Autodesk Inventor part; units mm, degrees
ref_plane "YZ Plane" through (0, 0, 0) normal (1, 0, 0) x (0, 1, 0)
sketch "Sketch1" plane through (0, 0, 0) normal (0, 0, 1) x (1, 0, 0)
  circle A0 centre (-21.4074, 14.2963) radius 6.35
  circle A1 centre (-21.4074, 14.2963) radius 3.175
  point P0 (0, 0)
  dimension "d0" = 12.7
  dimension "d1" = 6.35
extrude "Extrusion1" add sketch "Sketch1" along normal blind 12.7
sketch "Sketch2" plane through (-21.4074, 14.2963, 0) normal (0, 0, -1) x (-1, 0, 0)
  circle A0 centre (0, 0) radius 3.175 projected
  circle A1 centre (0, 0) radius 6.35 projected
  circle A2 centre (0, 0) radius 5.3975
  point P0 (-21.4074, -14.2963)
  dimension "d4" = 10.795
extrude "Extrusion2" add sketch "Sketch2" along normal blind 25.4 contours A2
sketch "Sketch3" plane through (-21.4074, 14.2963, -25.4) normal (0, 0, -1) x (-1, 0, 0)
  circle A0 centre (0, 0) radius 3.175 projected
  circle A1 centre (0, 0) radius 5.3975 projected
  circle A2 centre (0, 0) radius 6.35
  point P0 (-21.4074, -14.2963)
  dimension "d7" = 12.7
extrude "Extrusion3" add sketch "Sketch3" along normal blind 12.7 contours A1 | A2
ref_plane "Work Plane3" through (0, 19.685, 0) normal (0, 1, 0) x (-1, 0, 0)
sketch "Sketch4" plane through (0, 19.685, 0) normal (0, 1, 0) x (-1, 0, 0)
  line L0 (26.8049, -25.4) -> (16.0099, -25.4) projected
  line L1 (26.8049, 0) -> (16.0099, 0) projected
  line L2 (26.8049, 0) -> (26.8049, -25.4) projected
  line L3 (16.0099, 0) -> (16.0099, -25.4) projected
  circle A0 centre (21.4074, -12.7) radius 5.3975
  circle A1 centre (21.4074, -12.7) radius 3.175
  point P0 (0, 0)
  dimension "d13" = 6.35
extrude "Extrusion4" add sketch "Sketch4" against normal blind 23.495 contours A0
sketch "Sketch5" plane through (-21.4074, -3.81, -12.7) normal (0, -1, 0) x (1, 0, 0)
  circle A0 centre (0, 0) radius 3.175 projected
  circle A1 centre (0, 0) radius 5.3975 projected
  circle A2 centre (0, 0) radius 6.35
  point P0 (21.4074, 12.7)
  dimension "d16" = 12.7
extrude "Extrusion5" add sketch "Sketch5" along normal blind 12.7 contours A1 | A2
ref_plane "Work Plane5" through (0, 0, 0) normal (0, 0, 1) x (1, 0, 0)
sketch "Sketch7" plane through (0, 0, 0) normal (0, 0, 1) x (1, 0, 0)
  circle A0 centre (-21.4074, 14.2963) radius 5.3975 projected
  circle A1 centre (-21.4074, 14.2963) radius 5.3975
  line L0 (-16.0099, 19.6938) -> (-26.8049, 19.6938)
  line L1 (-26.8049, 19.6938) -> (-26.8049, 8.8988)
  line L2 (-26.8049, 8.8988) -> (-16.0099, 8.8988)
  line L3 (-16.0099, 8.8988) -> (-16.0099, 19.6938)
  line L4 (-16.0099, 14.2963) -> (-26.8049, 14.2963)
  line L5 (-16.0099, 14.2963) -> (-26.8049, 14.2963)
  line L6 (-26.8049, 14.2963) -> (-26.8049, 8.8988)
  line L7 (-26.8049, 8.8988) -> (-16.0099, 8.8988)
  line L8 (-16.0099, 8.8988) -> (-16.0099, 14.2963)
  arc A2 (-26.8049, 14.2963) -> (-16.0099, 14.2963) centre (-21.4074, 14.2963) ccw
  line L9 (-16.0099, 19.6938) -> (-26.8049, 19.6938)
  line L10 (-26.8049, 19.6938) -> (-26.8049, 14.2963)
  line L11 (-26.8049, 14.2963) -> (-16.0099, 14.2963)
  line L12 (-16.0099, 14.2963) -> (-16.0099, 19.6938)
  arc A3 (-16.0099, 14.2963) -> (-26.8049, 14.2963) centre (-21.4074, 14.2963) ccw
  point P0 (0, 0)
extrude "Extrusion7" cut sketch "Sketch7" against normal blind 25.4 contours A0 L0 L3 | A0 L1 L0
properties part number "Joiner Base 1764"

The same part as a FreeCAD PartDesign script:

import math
import FreeCAD as App
import Part
import Sketcher

V = App.Vector
Q = App.Units.Quantity

doc = App.newDocument("Part")
body = doc.addObject("PartDesign::Body", "Body")

sketch1 = body.newObject("Sketcher::SketchObject", "Sketch")
sketch1.AttachmentSupport = (doc.getObject("XY_Plane"), [""])
sketch1.MapMode = "FlatFace"
sketch1.addGeometry([
    Part.Circle(V(-21.4074, 14.2963, 0), V(0, 0, 1), 6.35),
    Part.Circle(V(-21.4074, 14.2963, 0), V(0, 0, 1), 3.175),
], False)
sketch1.addConstraint([
    Sketcher.Constraint("Coincident", 1, 3, 0, 3),
    Sketcher.Constraint("Diameter", 0, Q("0.5 in")),
    Sketcher.Constraint("Diameter", 1, Q("0.25 in")),
    Sketcher.Constraint("DistanceX", 0, 3, -1, 1, Q("0.8428 in")),
    Sketcher.Constraint("DistanceY", -1, 1, 0, 3, Q("14.2963 mm")),
])
pad1 = body.newObject("PartDesign::Pad", "Pad")
pad1.Profile = sketch1
pad1.Length = Q("0.5 in")

sketch2 = body.newObject("Sketcher::SketchObject", "Sketch001")
sketch2.AttachmentSupport = (doc.getObject("XY_Plane"), [""])
sketch2.MapMode = "FlatFace"
sketch2.addGeometry([
    Part.Circle(V(-21.4074, 14.2963, 0), V(0, 0, 1), 5.3975),
    Part.Circle(V(-21.4074, 14.2963, 0), V(0, 0, 1), 3.175),
], False)
sketch2.addConstraint([
    Sketcher.Constraint("Coincident", 1, 3, 0, 3),
    Sketcher.Constraint("Diameter", 0, Q("0.425 in")),
    Sketcher.Constraint("Diameter", 1, Q("0.25 in")),
    Sketcher.Constraint("DistanceX", 0, 3, -1, 1, Q("0.8428 in")),
    Sketcher.Constraint("DistanceY", -1, 1, 0, 3, Q("14.2963 mm")),
])
pad2 = body.newObject("PartDesign::Pad", "Pad001")
pad2.Profile = sketch2
pad2.Length = Q("1 in")
pad2.Reversed = True

sketch3 = body.newObject("Sketcher::SketchObject", "Sketch002")
sketch3.AttachmentSupport = (doc.getObject("XY_Plane"), [""])
sketch3.MapMode = "FlatFace"
sketch3.AttachmentOffset = App.Placement(V(0, 0, -1 * 25.4), App.Rotation())
sketch3.addGeometry([
    Part.Circle(V(-21.4074, 14.2963, 0), V(0, 0, 1), 6.35),
    Part.Circle(V(-21.4074, 14.2963, 0), V(0, 0, 1), 3.175),
], False)
sketch3.addConstraint([
    Sketcher.Constraint("Coincident", 1, 3, 0, 3),
    Sketcher.Constraint("Diameter", 0, Q("0.5 in")),
    Sketcher.Constraint("Diameter", 1, Q("0.25 in")),
    Sketcher.Constraint("DistanceX", 0, 3, -1, 1, Q("0.8428 in")),
    Sketcher.Constraint("DistanceY", -1, 1, 0, 3, Q("14.2963 mm")),
])
pad3 = body.newObject("PartDesign::Pad", "Pad002")
pad3.Profile = sketch3
pad3.Length = Q("0.5 in")
pad3.Reversed = True

sketch4 = body.newObject("Sketcher::SketchObject", "Sketch003")
sketch4.AttachmentSupport = (doc.getObject("XZ_Plane"), [""])
sketch4.MapMode = "FlatFace"
sketch4.AttachmentOffset = App.Placement(V(0, 0, -0.775 * 25.4), App.Rotation())
sketch4.addGeometry([
    Part.Circle(V(-21.4074, -12.7, 0), V(0, 0, 1), 5.3975),
    Part.Circle(V(-21.4074, -12.7, 0), V(0, 0, 1), 3.175),
], False)
sketch4.addConstraint([
    Sketcher.Constraint("Coincident", 1, 3, 0, 3),
    Sketcher.Constraint("Diameter", 1, Q("0.25 in")),
    Sketcher.Constraint("Diameter", 0, Q("0.425 in")),
    Sketcher.Constraint("DistanceY", 0, 3, -1, 1, Q("0.5 in")),
    Sketcher.Constraint("DistanceX", 0, 3, -1, 1, Q("0.8428 in")),
])
pad4 = body.newObject("PartDesign::Pad", "Pad003")
pad4.Profile = sketch4
pad4.Length = Q("0.925 in")

sketch5 = body.newObject("Sketcher::SketchObject", "Sketch004")
sketch5.AttachmentSupport = (doc.getObject("XZ_Plane"), [""])
sketch5.MapMode = "FlatFace"
sketch5.AttachmentOffset = App.Placement(V(0, 0, 0.15 * 25.4), App.Rotation())
sketch5.addGeometry([
    Part.Circle(V(-21.4074, -12.7, 0), V(0, 0, 1), 6.35),
    Part.Circle(V(-21.4074, -12.7, 0), V(0, 0, 1), 3.175),
], False)
sketch5.addConstraint([
    Sketcher.Constraint("Coincident", 1, 3, 0, 3),
    Sketcher.Constraint("Diameter", 0, Q("0.5 in")),
    Sketcher.Constraint("DistanceY", 0, 3, -1, 1, Q("0.5 in")),
    Sketcher.Constraint("Diameter", 1, Q("0.25 in")),
    Sketcher.Constraint("DistanceX", 0, 3, -1, 1, Q("0.8428 in")),
])
pad5 = body.newObject("PartDesign::Pad", "Pad004")
pad5.Profile = sketch5
pad5.Length = Q("0.5 in")

sketch6 = body.newObject("Sketcher::SketchObject", "Sketch005")
sketch6.AttachmentSupport = (doc.getObject("XY_Plane"), [""])
sketch6.MapMode = "FlatFace"
sketch6.addGeometry([
    Part.ArcOfCircle(Part.Circle(V(-21.4074, 14.2963, 0), V(0, 0, 1), 5.3975), math.radians(0), math.radians(90)),
    Part.LineSegment(V(-16.0099, 14.2963, 0), V(-16.0099, 19.6938, 0)),
    Part.LineSegment(V(-16.0099, 19.6938, 0), V(-21.4074, 19.6938, 0)),
    Part.ArcOfCircle(Part.Circle(V(-21.4074, 14.2963, 0), V(0, 0, 1), 5.3975), math.radians(90), math.radians(180)),
    Part.LineSegment(V(-21.4074, 19.6938, 0), V(-26.8049, 19.6938, 0)),
    Part.LineSegment(V(-26.8049, 19.6938, 0), V(-26.8049, 14.2963, 0)),
], False)
sketch6.addConstraint([
    Sketcher.Constraint("Tangent", 0, 1, 1, 1),
    Sketcher.Constraint("Coincident", 1, 2, 2, 1),
    Sketcher.Constraint("Tangent", 2, 2, 0, 2),
    Sketcher.Constraint("Tangent", 3, 1, 4, 1),
    Sketcher.Constraint("Coincident", 4, 2, 5, 1),
    Sketcher.Constraint("Tangent", 5, 2, 3, 2),
    Sketcher.Constraint("Vertical", 1),
    Sketcher.Constraint("Horizontal", 2),
    Sketcher.Constraint("Horizontal", 4),
    Sketcher.Constraint("Vertical", 5),
    Sketcher.Constraint("Coincident", 3, 3, 0, 3),
    Sketcher.Constraint("Equal", 0, 3),
    Sketcher.Constraint("Radius", 0, Q("0.2125 in")),
    Sketcher.Constraint("DistanceX", 0, 3, -1, 1, Q("0.8428 in")),
    Sketcher.Constraint("DistanceY", -1, 1, 0, 3, Q("14.2963 mm")),
])
pocket1 = body.newObject("PartDesign::Pocket", "Pocket")
pocket1.Profile = sketch6
pocket1.Length = Q("1 in")

doc.recompute()
